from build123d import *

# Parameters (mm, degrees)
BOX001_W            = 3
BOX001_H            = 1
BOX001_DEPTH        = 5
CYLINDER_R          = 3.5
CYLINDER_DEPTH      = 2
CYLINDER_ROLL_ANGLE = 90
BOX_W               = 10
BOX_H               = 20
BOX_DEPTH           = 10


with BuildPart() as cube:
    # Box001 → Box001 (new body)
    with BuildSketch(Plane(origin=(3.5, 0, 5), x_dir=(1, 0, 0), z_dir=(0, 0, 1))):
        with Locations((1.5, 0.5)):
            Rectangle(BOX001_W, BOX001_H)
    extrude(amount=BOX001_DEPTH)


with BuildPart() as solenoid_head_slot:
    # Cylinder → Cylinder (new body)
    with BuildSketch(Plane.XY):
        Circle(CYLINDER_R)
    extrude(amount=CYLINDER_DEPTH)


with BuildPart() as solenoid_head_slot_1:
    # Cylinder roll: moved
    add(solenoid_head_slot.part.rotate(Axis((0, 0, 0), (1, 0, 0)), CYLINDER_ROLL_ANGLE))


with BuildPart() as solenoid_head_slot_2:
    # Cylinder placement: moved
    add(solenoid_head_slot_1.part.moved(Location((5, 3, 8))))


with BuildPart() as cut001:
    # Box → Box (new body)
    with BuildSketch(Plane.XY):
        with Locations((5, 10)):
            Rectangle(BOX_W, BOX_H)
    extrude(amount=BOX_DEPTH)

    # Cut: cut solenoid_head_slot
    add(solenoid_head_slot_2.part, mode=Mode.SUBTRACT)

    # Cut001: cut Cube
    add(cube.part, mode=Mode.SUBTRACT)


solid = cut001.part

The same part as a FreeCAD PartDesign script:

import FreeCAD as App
import Part
import Sketcher

V = App.Vector
Q = App.Units.Quantity

doc = App.newDocument("Part")
body = doc.addObject("PartDesign::Body", "Body")

sketch1 = body.newObject("Sketcher::SketchObject", "Sketch")
sketch1.AttachmentSupport = (doc.getObject("XY_Plane"), [""])
sketch1.MapMode = "FlatFace"
sketch1.AttachmentOffset = App.Placement(V(0, 0, 5), App.Rotation())
sketch1.addGeometry([
    Part.LineSegment(V(3.5, 1, 0), V(3.5, 0, 0)),
    Part.LineSegment(V(3.5, 0, 0), V(6.5, 0, 0)),
    Part.LineSegment(V(6.5, 0, 0), V(6.5, 1, 0)),
    Part.LineSegment(V(6.5, 1, 0), V(3.5, 1, 0)),
], False)
sketch1.addConstraint([
    Sketcher.Constraint("Coincident", 0, 2, 1, 1),
    Sketcher.Constraint("Coincident", 1, 2, 2, 1),
    Sketcher.Constraint("Coincident", 2, 2, 3, 1),
    Sketcher.Constraint("Coincident", 3, 2, 0, 1),
    Sketcher.Constraint("Vertical", 0),
    Sketcher.Constraint("Horizontal", 1),
    Sketcher.Constraint("Vertical", 2),
    Sketcher.Constraint("Horizontal", 3),
    Sketcher.Constraint("PointOnObject", 0, 2, -1),
    Sketcher.Constraint("DistanceX", 1, 1, 1, 2, Q("3 mm")),
    Sketcher.Constraint("DistanceY", 0, 2, 0, 1, Q("1 mm")),
    Sketcher.Constraint("DistanceX", -1, 1, 0, 2, Q("3.5 mm")),
])
pad1 = body.newObject("PartDesign::Pad", "Pad")
pad1.Profile = sketch1
pad1.Length = 5
body2 = doc.addObject("PartDesign::Body", "Body001")

sketch2 = body2.newObject("Sketcher::SketchObject", "Sketch001")
sketch2.AttachmentSupport = (doc.getObject("XY_Plane001"), [""])
sketch2.MapMode = "FlatFace"
sketch2.addGeometry(Part.Circle(V(0, 0, 0), V(0, 0, 1), 3.5), False)
sketch2.addConstraint([
    Sketcher.Constraint("Coincident", 0, 3, -1, 1),
    Sketcher.Constraint("Diameter", 0, Q("7 mm")),
])
pad2 = body2.newObject("PartDesign::Pad", "Pad001")
pad2.Profile = sketch2
pad2.Length = 2
body3 = doc.addObject("PartDesign::Body", "Body002")
doc.recompute()

body2.Placement = App.Placement(V(0, 0, 0), App.Rotation(V(1, 0, 0), 90))
boolean = body3.newObject("PartDesign::Boolean", "Boolean")
boolean.Type = "Fuse"
boolean.addObjects([body2])
body4 = doc.addObject("PartDesign::Body", "Body003")
doc.recompute()

body3.Placement = App.Placement(V(5, 3, 8), App.Rotation(V(0, 0, 1), 0))
boolean2 = body4.newObject("PartDesign::Boolean", "Boolean001")
boolean2.Type = "Fuse"
boolean2.addObjects([body3])
body5 = doc.addObject("PartDesign::Body", "Body004")

sketch3 = body5.newObject("Sketcher::SketchObject", "Sketch002")
sketch3.AttachmentSupport = (doc.getObject("XY_Plane004"), [""])
sketch3.MapMode = "FlatFace"
sketch3.addGeometry([
    Part.LineSegment(V(0, 20, 0), V(0, 0, 0)),
    Part.LineSegment(V(0, 0, 0), V(10, 0, 0)),
    Part.LineSegment(V(10, 0, 0), V(10, 20, 0)),
    Part.LineSegment(V(10, 20, 0), V(0, 20, 0)),
], False)
sketch3.addConstraint([
    Sketcher.Constraint("Coincident", 0, 2, 1, 1),
    Sketcher.Constraint("Coincident", 1, 2, 2, 1),
    Sketcher.Constraint("Coincident", 2, 2, 3, 1),
    Sketcher.Constraint("Coincident", 3, 2, 0, 1),
    Sketcher.Constraint("Vertical", 0),
    Sketcher.Constraint("Horizontal", 1),
    Sketcher.Constraint("Vertical", 2),
    Sketcher.Constraint("Horizontal", 3),
    Sketcher.Constraint("Coincident", 0, 2, -1, 1),
    Sketcher.Constraint("DistanceX", 1, 1, 1, 2, Q("10 mm")),
    Sketcher.Constraint("DistanceY", 0, 2, 0, 1, Q("20 mm")),
])
pad3 = body5.newObject("PartDesign::Pad", "Pad002")
pad3.Profile = sketch3
pad3.Length = 10
doc.recompute()

boolean3 = body5.newObject("PartDesign::Boolean", "Boolean002")
boolean3.Type = "Cut"
boolean3.addObjects([body4])
doc.recompute()

boolean4 = body5.newObject("PartDesign::Boolean", "Boolean003")
boolean4.Type = "Cut"
boolean4.addObjects([body])

doc.recompute()
